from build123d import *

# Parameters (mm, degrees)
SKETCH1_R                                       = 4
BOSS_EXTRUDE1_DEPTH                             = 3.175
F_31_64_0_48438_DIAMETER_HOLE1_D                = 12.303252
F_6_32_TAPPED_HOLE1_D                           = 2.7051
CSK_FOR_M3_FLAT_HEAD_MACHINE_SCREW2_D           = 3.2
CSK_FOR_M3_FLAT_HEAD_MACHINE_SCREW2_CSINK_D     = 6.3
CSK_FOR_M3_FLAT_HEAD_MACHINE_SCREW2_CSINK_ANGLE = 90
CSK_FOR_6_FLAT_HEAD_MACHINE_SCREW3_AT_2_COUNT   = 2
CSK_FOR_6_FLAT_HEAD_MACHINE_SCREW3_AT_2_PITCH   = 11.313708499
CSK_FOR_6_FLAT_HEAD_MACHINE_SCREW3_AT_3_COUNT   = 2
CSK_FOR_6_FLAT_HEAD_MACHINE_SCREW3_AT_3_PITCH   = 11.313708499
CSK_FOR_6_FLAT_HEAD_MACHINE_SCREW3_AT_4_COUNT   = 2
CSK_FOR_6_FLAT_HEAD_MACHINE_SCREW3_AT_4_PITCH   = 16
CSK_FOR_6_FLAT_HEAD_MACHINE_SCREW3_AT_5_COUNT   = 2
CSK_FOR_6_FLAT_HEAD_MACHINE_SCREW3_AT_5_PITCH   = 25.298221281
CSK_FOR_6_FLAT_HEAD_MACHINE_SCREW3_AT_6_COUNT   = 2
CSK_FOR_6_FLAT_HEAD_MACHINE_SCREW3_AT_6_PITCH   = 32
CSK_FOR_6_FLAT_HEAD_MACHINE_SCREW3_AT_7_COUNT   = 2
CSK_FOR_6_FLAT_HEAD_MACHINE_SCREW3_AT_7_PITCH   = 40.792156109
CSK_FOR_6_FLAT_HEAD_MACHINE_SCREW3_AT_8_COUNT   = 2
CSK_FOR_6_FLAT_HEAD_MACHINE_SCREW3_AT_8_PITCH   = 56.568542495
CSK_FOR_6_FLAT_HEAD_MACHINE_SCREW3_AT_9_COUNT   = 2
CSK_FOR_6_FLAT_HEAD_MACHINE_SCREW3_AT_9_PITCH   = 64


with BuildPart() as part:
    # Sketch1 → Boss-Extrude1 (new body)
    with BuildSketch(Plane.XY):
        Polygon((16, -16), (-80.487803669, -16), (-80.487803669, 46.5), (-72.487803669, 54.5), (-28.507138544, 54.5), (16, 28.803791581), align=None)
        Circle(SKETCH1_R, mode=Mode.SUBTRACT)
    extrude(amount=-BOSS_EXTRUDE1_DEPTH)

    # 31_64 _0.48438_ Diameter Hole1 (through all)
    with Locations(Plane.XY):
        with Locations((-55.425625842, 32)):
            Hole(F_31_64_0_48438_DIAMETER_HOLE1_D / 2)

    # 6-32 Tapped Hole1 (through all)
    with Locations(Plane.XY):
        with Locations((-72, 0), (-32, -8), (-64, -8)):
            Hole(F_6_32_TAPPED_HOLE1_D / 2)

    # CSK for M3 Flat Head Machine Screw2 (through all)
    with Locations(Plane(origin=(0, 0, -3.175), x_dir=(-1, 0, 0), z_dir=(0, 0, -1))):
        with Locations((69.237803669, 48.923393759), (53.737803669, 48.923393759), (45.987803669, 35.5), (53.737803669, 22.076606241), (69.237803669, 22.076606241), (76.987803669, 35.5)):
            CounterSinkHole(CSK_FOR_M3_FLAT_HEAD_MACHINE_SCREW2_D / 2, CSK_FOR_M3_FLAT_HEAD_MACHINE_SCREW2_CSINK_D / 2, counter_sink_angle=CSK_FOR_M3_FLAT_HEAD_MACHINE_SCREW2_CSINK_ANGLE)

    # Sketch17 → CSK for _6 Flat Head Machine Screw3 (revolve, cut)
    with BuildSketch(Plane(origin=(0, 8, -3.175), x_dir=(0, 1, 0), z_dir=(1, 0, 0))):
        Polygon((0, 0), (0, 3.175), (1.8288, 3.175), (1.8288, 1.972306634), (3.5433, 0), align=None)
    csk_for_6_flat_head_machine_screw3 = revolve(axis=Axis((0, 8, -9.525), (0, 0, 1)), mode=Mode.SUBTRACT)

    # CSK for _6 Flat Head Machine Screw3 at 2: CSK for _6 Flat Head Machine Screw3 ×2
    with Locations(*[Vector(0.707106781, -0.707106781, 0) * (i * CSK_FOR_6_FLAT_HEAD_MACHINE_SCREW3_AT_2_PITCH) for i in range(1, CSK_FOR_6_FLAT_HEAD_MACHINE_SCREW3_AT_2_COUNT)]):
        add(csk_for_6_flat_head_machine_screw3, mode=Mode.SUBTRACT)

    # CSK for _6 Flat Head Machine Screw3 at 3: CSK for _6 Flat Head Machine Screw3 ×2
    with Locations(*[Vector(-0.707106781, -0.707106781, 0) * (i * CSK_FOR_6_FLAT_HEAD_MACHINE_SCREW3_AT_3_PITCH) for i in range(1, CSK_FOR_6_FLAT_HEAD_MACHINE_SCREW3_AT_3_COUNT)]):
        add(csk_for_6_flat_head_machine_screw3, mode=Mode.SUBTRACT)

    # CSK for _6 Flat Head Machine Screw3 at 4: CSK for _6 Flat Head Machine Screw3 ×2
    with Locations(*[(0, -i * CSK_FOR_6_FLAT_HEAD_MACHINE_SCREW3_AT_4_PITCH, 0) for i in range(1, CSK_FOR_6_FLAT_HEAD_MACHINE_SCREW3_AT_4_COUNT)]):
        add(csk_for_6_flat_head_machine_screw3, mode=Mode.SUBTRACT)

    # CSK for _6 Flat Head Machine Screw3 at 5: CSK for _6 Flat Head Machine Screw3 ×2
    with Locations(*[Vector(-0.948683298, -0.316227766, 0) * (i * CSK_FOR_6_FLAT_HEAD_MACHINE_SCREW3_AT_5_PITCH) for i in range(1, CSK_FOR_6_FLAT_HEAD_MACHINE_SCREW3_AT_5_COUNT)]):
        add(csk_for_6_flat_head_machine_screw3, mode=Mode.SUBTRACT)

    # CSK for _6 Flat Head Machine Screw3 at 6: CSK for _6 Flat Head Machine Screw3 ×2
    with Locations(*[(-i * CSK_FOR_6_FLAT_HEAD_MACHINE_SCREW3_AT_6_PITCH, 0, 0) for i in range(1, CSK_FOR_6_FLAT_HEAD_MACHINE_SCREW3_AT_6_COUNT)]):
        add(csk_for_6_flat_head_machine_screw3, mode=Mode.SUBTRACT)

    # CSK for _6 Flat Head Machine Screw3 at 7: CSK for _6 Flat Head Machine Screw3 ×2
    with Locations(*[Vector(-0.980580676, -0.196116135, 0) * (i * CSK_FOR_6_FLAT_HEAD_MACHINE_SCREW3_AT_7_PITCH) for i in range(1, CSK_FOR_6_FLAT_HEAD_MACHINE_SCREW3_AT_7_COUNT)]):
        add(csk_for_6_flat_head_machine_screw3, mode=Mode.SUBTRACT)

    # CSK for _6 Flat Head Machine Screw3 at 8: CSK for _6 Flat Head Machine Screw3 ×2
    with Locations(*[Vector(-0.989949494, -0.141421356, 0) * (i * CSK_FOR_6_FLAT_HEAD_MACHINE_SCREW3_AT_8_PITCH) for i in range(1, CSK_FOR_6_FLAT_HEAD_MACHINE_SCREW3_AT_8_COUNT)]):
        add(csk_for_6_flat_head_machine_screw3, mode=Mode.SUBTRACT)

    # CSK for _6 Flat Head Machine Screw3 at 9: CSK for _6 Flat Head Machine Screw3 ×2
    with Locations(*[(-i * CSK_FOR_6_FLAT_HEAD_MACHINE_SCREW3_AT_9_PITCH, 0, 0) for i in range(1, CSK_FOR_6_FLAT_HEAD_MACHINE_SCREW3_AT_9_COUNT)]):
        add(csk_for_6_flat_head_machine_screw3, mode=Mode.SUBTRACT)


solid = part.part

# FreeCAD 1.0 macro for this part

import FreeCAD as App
import Part
import Sketcher
from FreeCAD import Vector
Q = App.Units.Quantity


def add_polygon(sketch, points):
    """Adds a closed chain of lines whose ends are joined by coincident constraints."""
    first, n = sketch.GeometryCount, len(points)
    for a, b in zip(points, points[1:] + points[:1]):
        sketch.addGeometry(Part.LineSegment(App.Vector(*a, 0), App.Vector(*b, 0)), False)
    for i in range(n):
        sketch.addConstraint(Sketcher.Constraint("Coincident", first + i, 2, first + (i + 1) % n, 1))

doc = App.newDocument("Part")
body = doc.addObject("PartDesign::Body", "Body")

sketch1 = body.newObject("Sketcher::SketchObject", "Sketch")
sketch1.AttachmentSupport = (doc.getObject("XY_Plane"), [""])
sketch1.MapMode = "FlatFace"
add_polygon(sketch1, [(-80.5, -16), (16, -16), (16, 28.8), (-28.5, 54.5), (-72.5, 54.5), (-80.5, 46.5)])
sketch1.addGeometry(Part.Circle(Vector(0, 0, 0), Vector(0, 0, 1), 4), False)
sketch1.addConstraint(Sketcher.Constraint("Horizontal", 0))
sketch1.addConstraint(Sketcher.Constraint("Vertical", 1))
sketch1.addConstraint(Sketcher.Constraint("Horizontal", 3))
sketch1.addConstraint(Sketcher.Constraint("Vertical", 5))
sketch1.addConstraint(Sketcher.Constraint("Coincident", 6, 3, -1, 1))
sketch1.addConstraint(Sketcher.Constraint("Diameter", 6, 8.0))
sketch1.addConstraint(Sketcher.Constraint("Angle", 2, Q("150 deg")))
sketch1.addConstraint(Sketcher.Constraint("Angle", 4, Q("-135 deg")))
sketch1.addConstraint(Sketcher.Constraint("DistanceY", 5, 2, 5, 1, 62.5))
sketch1.addConstraint(Sketcher.Constraint("DistanceX", -1, 1, 0, 2, 16.0))
sketch1.addConstraint(Sketcher.Constraint("DistanceY", 0, 2, -1, 1, 16.0))
sketch1.addConstraint(Sketcher.Constraint("DistanceX", 4, 2, 3, 2, 8.0))
sketch1.addConstraint(Sketcher.Constraint("DistanceY", 1, 1, 1, 2, 44.803792))
sketch1.addConstraint(Sketcher.Constraint("DistanceX", 0, 1, 0, 2, 96.487804))
pad1 = body.newObject("PartDesign::Pad", "Pad")
pad1.Profile = sketch1
pad1.Length = 3.175
pad1.Reversed = True

sketch2 = body.newObject("Sketcher::SketchObject", "Sketch001")
sketch2.AttachmentSupport = (doc.getObject("XY_Plane"), [""])
sketch2.MapMode = "FlatFace"
sketch2.addGeometry(Part.Circle(Vector(-55, 32, 0), Vector(0, 0, 1), 6), False)
sketch2.addConstraint(Sketcher.Constraint("DistanceY", -1, 1, 0, 3, 32.0))
sketch2.addConstraint(Sketcher.Constraint("Diameter", 0, 12.303252))
sketch2.addConstraint(Sketcher.Constraint("DistanceX", 0, 3, -1, 1, 55.425626))
doc.recompute()
hole = body.newObject("PartDesign::Hole", "Hole")
hole.Profile = sketch2
hole.ThreadType = "None"
hole.Diameter = 12.303252
hole.DepthType = "ThroughAll"

sketch3 = body.newObject("Sketcher::SketchObject", "Sketch002")
sketch3.AttachmentSupport = (doc.getObject("XY_Plane"), [""])
sketch3.MapMode = "FlatFace"
sketch3.addGeometry(Part.Circle(Vector(-72, 0, 0), Vector(0, 0, 1), 1.4), False)
sketch3.addGeometry(Part.Circle(Vector(-32, -8, 0), Vector(0, 0, 1), 1.4), False)
sketch3.addGeometry(Part.Circle(Vector(-64, -8, 0), Vector(0, 0, 1), 1.4), False)
sketch3.addConstraint(Sketcher.Constraint("Equal", 0, 1))
sketch3.addConstraint(Sketcher.Constraint("Equal", 1, 2))
sketch3.addConstraint(Sketcher.Constraint("PointOnObject", 0, 3, -1))
sketch3.addConstraint(Sketcher.Constraint("Horizontal", 1, 3, 2, 3))
sketch3.addConstraint(Sketcher.Constraint("DistanceX", 0, 3, -1, 1, 72.0))
sketch3.addConstraint(Sketcher.Constraint("DistanceX", 1, 3, -1, 1, 32.0))
sketch3.addConstraint(Sketcher.Constraint("DistanceY", 1, 3, -1, 1, 8.0))
sketch3.addConstraint(Sketcher.Constraint("DistanceX", 2, 3, -1, 1, 64.0))
sketch3.addConstraint(Sketcher.Constraint("Diameter", 0, 2.7051))
doc.recompute()
hole2 = body.newObject("PartDesign::Hole", "Hole001")
hole2.Profile = sketch3
hole2.ThreadType = "None"
hole2.Diameter = 2.7051
hole2.DepthType = "ThroughAll"

sketch4 = body.newObject("Sketcher::SketchObject", "Sketch003")
sketch4.AttachmentSupport = (doc.getObject("XY_Plane"), [""])
sketch4.MapMode = "FlatFace"
sketch4.AttachmentOffset = App.Placement(Vector(0, 0, -3.175), App.Rotation())
sketch4.addGeometry(Part.Circle(Vector(-69.2, 48.9, 0), Vector(0, 0, 1), 1.6), False)
sketch4.addGeometry(Part.Circle(Vector(-53.7, 48.9, 0), Vector(0, 0, 1), 1.6), False)
sketch4.addGeometry(Part.Circle(Vector(-46, 35.5, 0), Vector(0, 0, 1), 1.6), False)
sketch4.addGeometry(Part.Circle(Vector(-53.7, 22.1, 0), Vector(0, 0, 1), 1.6), False)
sketch4.addGeometry(Part.Circle(Vector(-69.2, 22.1, 0), Vector(0, 0, 1), 1.6), False)
sketch4.addGeometry(Part.Circle(Vector(-77, 35.5, 0), Vector(0, 0, 1), 1.6), False)
sketch4.addConstraint(Sketcher.Constraint("Equal", 0, 1))
sketch4.addConstraint(Sketcher.Constraint("Equal", 1, 2))
sketch4.addConstraint(Sketcher.Constraint("Equal", 2, 3))
sketch4.addConstraint(Sketcher.Constraint("Equal", 3, 4))
sketch4.addConstraint(Sketcher.Constraint("Equal", 4, 5))
sketch4.addConstraint(Sketcher.Constraint("Horizontal", 0, 3, 1, 3))
sketch4.addConstraint(Sketcher.Constraint("Horizontal", 3, 3, 4, 3))
sketch4.addConstraint(Sketcher.Constraint("Horizontal", 2, 3, 5, 3))
sketch4.addConstraint(Sketcher.Constraint("Vertical", 1, 3, 3, 3))
sketch4.addConstraint(Sketcher.Constraint("Vertical", 0, 3, 4, 3))
sketch4.addConstraint(Sketcher.Constraint("Diameter", 0, 3.2))
sketch4.addConstraint(Sketcher.Constraint("DistanceX", 5, 3, 2, 3, 31.0))
sketch4.addConstraint(Sketcher.Constraint("DistanceY", -1, 1, 2, 3, 35.5))
sketch4.addConstraint(Sketcher.Constraint("DistanceX", 0, 3, 1, 3, 15.5))
sketch4.addConstraint(Sketcher.Constraint("DistanceX", 1, 3, 2, 3, 7.75))
sketch4.addConstraint(Sketcher.Constraint("DistanceX", 0, 3, -1, 1, 69.237804))
sketch4.addConstraint(Sketcher.Constraint("DistanceY", -1, 1, 0, 3, 48.923394))
sketch4.addConstraint(Sketcher.Constraint("DistanceY", -1, 1, 3, 3, 22.076606))
doc.recompute()
hole3 = body.newObject("PartDesign::Hole", "Hole002")
hole3.Profile = sketch4
hole3.ThreadType = "None"
hole3.Diameter = 3.2
hole3.DepthType = "ThroughAll"
hole3.HoleCutType = "Countersink"
hole3.HoleCutDiameter = 6.3
hole3.HoleCutCountersinkAngle = 90
hole3.Reversed = True

sketch5 = body.newObject("Sketcher::SketchObject", "Sketch004")
sketch5.AttachmentSupport = (doc.getObject("YZ_Plane"), [""])
sketch5.MapMode = "FlatFace"
add_polygon(sketch5, [(8, 0), (8, -3.2), (11.5, -3.2), (9.8, -1.2), (9.8, 0)])
sketch5.addGeometry(Part.LineSegment(Vector(8, -3.2, 0), Vector(8, 0, 0)), True)
sketch5.addConstraint(Sketcher.Constraint("Vertical", 0))
sketch5.addConstraint(Sketcher.Constraint("Horizontal", 1))
sketch5.addConstraint(Sketcher.Constraint("Vertical", 3))
sketch5.addConstraint(Sketcher.Constraint("Horizontal", 4))
sketch5.addConstraint(Sketcher.Constraint("Vertical", 5))
sketch5.addConstraint(Sketcher.Constraint("Coincident", 5, 1, 0, 2))
sketch5.addConstraint(Sketcher.Constraint("PointOnObject", 3, 2, -1))
sketch5.addConstraint(Sketcher.Constraint("PointOnObject", 5, 2, -1))
sketch5.addConstraint(Sketcher.Constraint("Angle", 2, Q("131 deg")))
sketch5.addConstraint(Sketcher.Constraint("DistanceX", -1, 1, 0, 2, 8.0))
sketch5.addConstraint(Sketcher.Constraint("DistanceY", 0, 2, 0, 1, 3.175))
sketch5.addConstraint(Sketcher.Constraint("DistanceX", 1, 1, 1, 2, 3.5433))
sketch5.addConstraint(Sketcher.Constraint("DistanceX", 4, 2, 4, 1, 1.8288))
groove = body.newObject("PartDesign::Groove", "Groove")
groove.Profile = sketch5
groove.ReferenceAxis = (sketch5, ["Axis0"])
groove.Angle = 360
doc.recompute()

datumline = body.newObject("PartDesign::Line", "DatumLine")
datumline.Placement = App.Placement(Vector(0, 0, 0), App.Rotation(Vector(0, 0, 1), Vector(0.707106781, -0.707106781, 0)))
linearpattern = body.newObject("PartDesign::LinearPattern", "LinearPattern")
linearpattern.Originals = [groove]
linearpattern.Direction = (datumline, [""])
linearpattern.Mode = "offset"
linearpattern.Offset = 11.313708
linearpattern.Occurrences = 2
body.Tip = linearpattern
doc.recompute()

datumline2 = body.newObject("PartDesign::Line", "DatumLine001")
datumline2.Placement = App.Placement(Vector(0, 0, 0), App.Rotation(Vector(0, 0, 1), Vector(-0.707106781, -0.707106781, 0)))
linearpattern2 = body.newObject("PartDesign::LinearPattern", "LinearPattern001")
linearpattern2.Originals = [groove]
linearpattern2.Direction = (datumline2, [""])
linearpattern2.Mode = "offset"
linearpattern2.Offset = 11.313708
linearpattern2.Occurrences = 2
body.Tip = linearpattern2
doc.recompute()

linearpattern3 = body.newObject("PartDesign::LinearPattern", "LinearPattern002")
linearpattern3.Originals = [groove]
linearpattern3.Direction = (doc.getObject("Y_Axis"), [""])
linearpattern3.Mode = "offset"
linearpattern3.Offset = 16
linearpattern3.Occurrences = 2
linearpattern3.Reversed = True
body.Tip = linearpattern3
doc.recompute()

datumline3 = body.newObject("PartDesign::Line", "DatumLine002")
datumline3.Placement = App.Placement(Vector(0, 0, 0), App.Rotation(Vector(0, 0, 1), Vector(-0.948683298, -0.316227766, 0)))
linearpattern4 = body.newObject("PartDesign::LinearPattern", "LinearPattern003")
linearpattern4.Originals = [groove]
linearpattern4.Direction = (datumline3, [""])
linearpattern4.Mode = "offset"
linearpattern4.Offset = 25.298221
linearpattern4.Occurrences = 2
body.Tip = linearpattern4
doc.recompute()

linearpattern5 = body.newObject("PartDesign::LinearPattern", "LinearPattern004")
linearpattern5.Originals = [groove]
linearpattern5.Direction = (doc.getObject("X_Axis"), [""])
linearpattern5.Mode = "offset"
linearpattern5.Offset = 32
linearpattern5.Occurrences = 2
linearpattern5.Reversed = True
body.Tip = linearpattern5
doc.recompute()

datumline4 = body.newObject("PartDesign::Line", "DatumLine003")
datumline4.Placement = App.Placement(Vector(0, 0, 0), App.Rotation(Vector(0, 0, 1), Vector(-0.980580676, -0.196116135, 0)))
linearpattern6 = body.newObject("PartDesign::LinearPattern", "LinearPattern005")
linearpattern6.Originals = [groove]
linearpattern6.Direction = (datumline4, [""])
linearpattern6.Mode = "offset"
linearpattern6.Offset = 40.792156
linearpattern6.Occurrences = 2
body.Tip = linearpattern6
doc.recompute()

datumline5 = body.newObject("PartDesign::Line", "DatumLine004")
datumline5.Placement = App.Placement(Vector(0, 0, 0), App.Rotation(Vector(0, 0, 1), Vector(-0.989949494, -0.141421356, 0)))
linearpattern7 = body.newObject("PartDesign::LinearPattern", "LinearPattern006")
linearpattern7.Originals = [groove]
linearpattern7.Direction = (datumline5, [""])
linearpattern7.Mode = "offset"
linearpattern7.Offset = 56.568543
linearpattern7.Occurrences = 2
body.Tip = linearpattern7
doc.recompute()

linearpattern8 = body.newObject("PartDesign::LinearPattern", "LinearPattern007")
linearpattern8.Originals = [groove]
linearpattern8.Direction = (doc.getObject("X_Axis"), [""])
linearpattern8.Mode = "offset"
linearpattern8.Offset = 64
linearpattern8.Occurrences = 2
linearpattern8.Reversed = True
body.Tip = linearpattern8

doc.recompute()
